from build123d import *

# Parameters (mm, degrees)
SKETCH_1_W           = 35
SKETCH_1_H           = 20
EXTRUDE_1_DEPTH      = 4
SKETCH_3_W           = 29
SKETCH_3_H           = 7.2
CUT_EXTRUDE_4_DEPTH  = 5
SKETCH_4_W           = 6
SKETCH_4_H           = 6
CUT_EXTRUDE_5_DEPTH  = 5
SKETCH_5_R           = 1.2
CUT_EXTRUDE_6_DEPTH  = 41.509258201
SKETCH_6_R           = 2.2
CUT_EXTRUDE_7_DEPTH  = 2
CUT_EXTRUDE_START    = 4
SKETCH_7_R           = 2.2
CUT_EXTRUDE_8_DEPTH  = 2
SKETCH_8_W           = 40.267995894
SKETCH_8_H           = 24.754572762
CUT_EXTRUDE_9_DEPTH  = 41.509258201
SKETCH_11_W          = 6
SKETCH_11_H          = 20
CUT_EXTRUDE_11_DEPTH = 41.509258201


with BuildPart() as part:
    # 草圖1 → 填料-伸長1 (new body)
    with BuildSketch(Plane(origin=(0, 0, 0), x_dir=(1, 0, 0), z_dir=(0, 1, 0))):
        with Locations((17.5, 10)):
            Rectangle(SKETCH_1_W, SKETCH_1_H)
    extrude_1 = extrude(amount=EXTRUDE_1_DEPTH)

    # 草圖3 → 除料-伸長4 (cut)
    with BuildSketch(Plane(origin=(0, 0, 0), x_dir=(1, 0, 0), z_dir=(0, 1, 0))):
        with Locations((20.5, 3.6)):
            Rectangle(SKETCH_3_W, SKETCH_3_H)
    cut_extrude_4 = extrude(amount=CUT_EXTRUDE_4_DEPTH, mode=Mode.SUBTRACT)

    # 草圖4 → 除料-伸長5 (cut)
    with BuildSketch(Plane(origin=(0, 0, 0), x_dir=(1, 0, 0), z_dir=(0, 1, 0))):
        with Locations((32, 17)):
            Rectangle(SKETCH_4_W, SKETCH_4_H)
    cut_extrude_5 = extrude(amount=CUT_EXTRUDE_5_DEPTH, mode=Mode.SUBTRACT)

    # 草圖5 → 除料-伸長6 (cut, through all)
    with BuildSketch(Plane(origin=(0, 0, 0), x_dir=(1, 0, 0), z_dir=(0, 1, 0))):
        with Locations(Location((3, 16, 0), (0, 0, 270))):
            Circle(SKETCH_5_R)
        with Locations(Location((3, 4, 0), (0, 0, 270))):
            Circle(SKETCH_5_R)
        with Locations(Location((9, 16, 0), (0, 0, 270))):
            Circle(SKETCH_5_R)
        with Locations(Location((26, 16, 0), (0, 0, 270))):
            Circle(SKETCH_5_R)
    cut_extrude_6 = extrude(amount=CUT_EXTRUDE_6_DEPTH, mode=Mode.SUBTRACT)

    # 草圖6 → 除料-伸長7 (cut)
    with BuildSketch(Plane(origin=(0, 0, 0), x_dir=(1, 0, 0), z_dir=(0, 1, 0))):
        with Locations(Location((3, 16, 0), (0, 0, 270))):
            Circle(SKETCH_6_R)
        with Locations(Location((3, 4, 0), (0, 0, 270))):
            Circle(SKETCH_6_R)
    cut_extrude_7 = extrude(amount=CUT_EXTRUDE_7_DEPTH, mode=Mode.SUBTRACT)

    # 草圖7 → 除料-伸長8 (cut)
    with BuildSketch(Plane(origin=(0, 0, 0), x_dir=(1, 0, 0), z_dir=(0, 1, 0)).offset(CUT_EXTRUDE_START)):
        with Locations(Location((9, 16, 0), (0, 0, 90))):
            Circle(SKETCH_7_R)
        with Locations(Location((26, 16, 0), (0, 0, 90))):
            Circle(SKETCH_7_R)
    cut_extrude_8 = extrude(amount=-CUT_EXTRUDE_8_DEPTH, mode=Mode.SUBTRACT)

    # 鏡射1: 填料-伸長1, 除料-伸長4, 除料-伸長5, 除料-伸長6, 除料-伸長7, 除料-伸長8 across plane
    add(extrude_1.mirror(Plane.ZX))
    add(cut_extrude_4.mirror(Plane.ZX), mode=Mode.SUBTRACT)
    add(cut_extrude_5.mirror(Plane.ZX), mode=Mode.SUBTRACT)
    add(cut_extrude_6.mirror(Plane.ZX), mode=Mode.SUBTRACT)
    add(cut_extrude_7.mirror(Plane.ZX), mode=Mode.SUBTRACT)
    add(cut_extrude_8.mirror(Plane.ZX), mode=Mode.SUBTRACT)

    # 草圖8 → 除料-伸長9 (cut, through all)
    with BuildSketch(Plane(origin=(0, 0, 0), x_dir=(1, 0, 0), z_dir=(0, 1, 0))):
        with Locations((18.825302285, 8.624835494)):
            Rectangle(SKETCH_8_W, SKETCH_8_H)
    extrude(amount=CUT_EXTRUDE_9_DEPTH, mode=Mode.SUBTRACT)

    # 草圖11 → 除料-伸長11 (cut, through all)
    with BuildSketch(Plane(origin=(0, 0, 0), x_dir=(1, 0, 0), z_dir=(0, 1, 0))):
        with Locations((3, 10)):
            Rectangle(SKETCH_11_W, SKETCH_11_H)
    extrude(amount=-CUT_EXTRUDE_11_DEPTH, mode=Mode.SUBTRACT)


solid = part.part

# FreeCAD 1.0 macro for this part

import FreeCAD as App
import Part
import Sketcher

V = App.Vector

doc = App.newDocument("Part")
params = doc.addObject("Spreadsheet::Sheet", "Params")
for row, (alias, value) in enumerate([
    ("sketch1_width", "35 mm"),
    ("sketch1_height", "20 mm"),
    ("pad1_length", "4 mm"),
    ("sketch2_width", "29 mm"),
    ("sketch2_height", "7.2 mm"),
    ("pocket1_length", "5 mm"),
    ("sketch3_width", "6 mm"),
    ("pocket2_length", "5 mm"),
    ("sketch4_diameter", "2.4 mm"),
    ("sketch5_diameter", "4.4 mm"),
    ("pocket4_length", "2 mm"),
    ("sketch6_diameter", "4.4 mm"),
    ("pocket5_length", "2 mm"),
    ("sketch8_width", "6 mm"),
    ("sketch8_height", "20 mm"),
], start=1):
    params.set(f"A{row}", alias)
    params.set(f"B{row}", "=" + value)
    params.setAlias(f"B{row}", alias)

body = doc.addObject("PartDesign::Body", "Body")

sketch1 = body.newObject("Sketcher::SketchObject", "Sketch")
sketch1.AttachmentSupport = (doc.getObject("XZ_Plane"), [""])
sketch1.MapMode = "FlatFace"
sketch1.addGeometry([
    Part.LineSegment(V(0, -20, 0), V(0, 0, 0)),
    Part.LineSegment(V(0, 0, 0), V(35, 0, 0)),
    Part.LineSegment(V(35, 0, 0), V(35, -20, 0)),
    Part.LineSegment(V(35, -20, 0), V(0, -20, 0)),
], False)
sketch1.addConstraint([
    Sketcher.Constraint("Coincident", 0, 2, 1, 1),
    Sketcher.Constraint("Coincident", 1, 2, 2, 1),
    Sketcher.Constraint("Coincident", 2, 2, 3, 1),
    Sketcher.Constraint("Coincident", 3, 2, 0, 1),
    Sketcher.Constraint("Vertical", 0),
    Sketcher.Constraint("Horizontal", 1),
    Sketcher.Constraint("Vertical", 2),
    Sketcher.Constraint("Horizontal", 3),
    Sketcher.Constraint("Coincident", 0, 2, -1, 1),
    Sketcher.Constraint("DistanceX", 1, 1, 1, 2, 35.0),
    Sketcher.Constraint("DistanceY", 0, 1, 0, 2, 20.0),
])
sketch1.setExpression("Constraints[9]", "Params.sketch1_width")
sketch1.setExpression("Constraints[10]", "Params.sketch1_height")
pad1 = body.newObject("PartDesign::Pad", "Pad")
pad1.Profile = sketch1
pad1.setExpression("Length", "Params.pad1_length")
pad1.Reversed = True

sketch2 = body.newObject("Sketcher::SketchObject", "Sketch001")
sketch2.AttachmentSupport = (doc.getObject("XZ_Plane"), [""])
sketch2.MapMode = "FlatFace"
sketch2.addGeometry([
    Part.LineSegment(V(6, -7.2, 0), V(6, 0, 0)),
    Part.LineSegment(V(6, 0, 0), V(35, 0, 0)),
    Part.LineSegment(V(35, 0, 0), V(35, -7.2, 0)),
    Part.LineSegment(V(35, -7.2, 0), V(6, -7.2, 0)),
], False)
sketch2.addConstraint([
    Sketcher.Constraint("Coincident", 0, 2, 1, 1),
    Sketcher.Constraint("Coincident", 1, 2, 2, 1),
    Sketcher.Constraint("Coincident", 2, 2, 3, 1),
    Sketcher.Constraint("Coincident", 3, 2, 0, 1),
    Sketcher.Constraint("Vertical", 0),
    Sketcher.Constraint("Horizontal", 1),
    Sketcher.Constraint("Vertical", 2),
    Sketcher.Constraint("Horizontal", 3),
    Sketcher.Constraint("PointOnObject", 0, 2, -1),
    Sketcher.Constraint("DistanceX", 1, 1, 1, 2, 29.0),
    Sketcher.Constraint("DistanceY", 0, 1, 0, 2, 7.2),
    Sketcher.Constraint("DistanceX", -1, 1, 0, 2, 6.0),
])
sketch2.setExpression("Constraints[9]", "Params.sketch2_width")
sketch2.setExpression("Constraints[10]", "Params.sketch2_height")
pocket1 = body.newObject("PartDesign::Pocket", "Pocket")
pocket1.Profile = sketch2
pocket1.setExpression("Length", "Params.pocket1_length")

sketch3 = body.newObject("Sketcher::SketchObject", "Sketch002")
sketch3.AttachmentSupport = (doc.getObject("XZ_Plane"), [""])
sketch3.MapMode = "FlatFace"
sketch3.addGeometry([
    Part.LineSegment(V(29, -20, 0), V(29, -14, 0)),
    Part.LineSegment(V(29, -14, 0), V(35, -14, 0)),
    Part.LineSegment(V(35, -14, 0), V(35, -20, 0)),
    Part.LineSegment(V(35, -20, 0), V(29, -20, 0)),
], False)
sketch3.addConstraint([
    Sketcher.Constraint("Coincident", 0, 2, 1, 1),
    Sketcher.Constraint("Coincident", 1, 2, 2, 1),
    Sketcher.Constraint("Coincident", 2, 2, 3, 1),
    Sketcher.Constraint("Coincident", 3, 2, 0, 1),
    Sketcher.Constraint("Vertical", 0),
    Sketcher.Constraint("Horizontal", 1),
    Sketcher.Constraint("Vertical", 2),
    Sketcher.Constraint("Horizontal", 3),
    Sketcher.Constraint("Equal", 3, 0),
    Sketcher.Constraint("DistanceX", 1, 1, 1, 2, 6.0),
    Sketcher.Constraint("DistanceX", -1, 1, 0, 2, 29.0),
    Sketcher.Constraint("DistanceY", 0, 2, -1, 1, 14.0),
])
sketch3.setExpression("Constraints[9]", "Params.sketch3_width")
pocket2 = body.newObject("PartDesign::Pocket", "Pocket001")
pocket2.Profile = sketch3
pocket2.setExpression("Length", "Params.pocket2_length")

sketch4 = body.newObject("Sketcher::SketchObject", "Sketch003")
sketch4.AttachmentSupport = (doc.getObject("XZ_Plane"), [""])
sketch4.MapMode = "FlatFace"
sketch4.addGeometry([
    Part.Circle(V(3, -16, 0), V(0, 0, 1), 1.2),
    Part.Circle(V(3, -4, 0), V(0, 0, 1), 1.2),
    Part.Circle(V(9, -16, 0), V(0, 0, 1), 1.2),
    Part.Circle(V(26, -16, 0), V(0, 0, 1), 1.2),
], False)
sketch4.addConstraint([
    Sketcher.Constraint("Equal", 0, 1),
    Sketcher.Constraint("Equal", 1, 2),
    Sketcher.Constraint("Equal", 2, 3),
    Sketcher.Constraint("Horizontal", 0, 3, 2, 3),
    Sketcher.Constraint("Horizontal", 2, 3, 3, 3),
    Sketcher.Constraint("Vertical", 0, 3, 1, 3),
    Sketcher.Constraint("Diameter", 0, 2.4),
    Sketcher.Constraint("DistanceX", -1, 1, 0, 3, 3.0),
    Sketcher.Constraint("DistanceY", 0, 3, -1, 1, 16.0),
    Sketcher.Constraint("DistanceY", 1, 3, -1, 1, 4.0),
    Sketcher.Constraint("DistanceX", -1, 1, 2, 3, 9.0),
    Sketcher.Constraint("DistanceX", -1, 1, 3, 3, 26.0),
])
sketch4.setExpression("Constraints[6]", "Params.sketch4_diameter")
pocket3 = body.newObject("PartDesign::Pocket", "Pocket002")
pocket3.Profile = sketch4
pocket3.Type = "ThroughAll"

sketch5 = body.newObject("Sketcher::SketchObject", "Sketch004")
sketch5.AttachmentSupport = (doc.getObject("XZ_Plane"), [""])
sketch5.MapMode = "FlatFace"
sketch5.addGeometry([
    Part.Circle(V(3, -16, 0), V(0, 0, 1), 2.2),
    Part.Circle(V(3, -4, 0), V(0, 0, 1), 2.2),
], False)
sketch5.addConstraint([
    Sketcher.Constraint("Equal", 0, 1),
    Sketcher.Constraint("Vertical", 0, 3, 1, 3),
    Sketcher.Constraint("Diameter", 0, 4.4),
    Sketcher.Constraint("DistanceX", -1, 1, 0, 3, 3.0),
    Sketcher.Constraint("DistanceY", 0, 3, -1, 1, 16.0),
    Sketcher.Constraint("DistanceY", 1, 3, -1, 1, 4.0),
])
sketch5.setExpression("Constraints[2]", "Params.sketch5_diameter")
pocket4 = body.newObject("PartDesign::Pocket", "Pocket003")
pocket4.Profile = sketch5
pocket4.setExpression("Length", "Params.pocket4_length")

sketch6 = body.newObject("Sketcher::SketchObject", "Sketch005")
sketch6.AttachmentSupport = (doc.getObject("XZ_Plane"), [""])
sketch6.MapMode = "FlatFace"
sketch6.AttachmentOffset = App.Placement(V(0, 0, -4), App.Rotation())
sketch6.addGeometry([
    Part.Circle(V(9, -16, 0), V(0, 0, 1), 2.2),
    Part.Circle(V(26, -16, 0), V(0, 0, 1), 2.2),
], False)
sketch6.addConstraint([
    Sketcher.Constraint("Equal", 0, 1),
    Sketcher.Constraint("Horizontal", 0, 3, 1, 3),
    Sketcher.Constraint("Diameter", 0, 4.4),
    Sketcher.Constraint("DistanceX", -1, 1, 0, 3, 9.0),
    Sketcher.Constraint("DistanceY", 0, 3, -1, 1, 16.0),
    Sketcher.Constraint("DistanceX", -1, 1, 1, 3, 26.0),
])
sketch6.setExpression("Constraints[2]", "Params.sketch6_diameter")
pocket5 = body.newObject("PartDesign::Pocket", "Pocket004")
pocket5.Profile = sketch6
pocket5.setExpression("Length", "Params.pocket5_length")
pocket5.Reversed = True
doc.recompute()

mirrored = body.newObject("PartDesign::Mirrored", "Mirrored")
mirrored.Originals = [pad1, pocket1, pocket2, pocket3, pocket4, pocket5]
mirrored.MirrorPlane = (doc.getObject("XZ_Plane"), [""])
body.Tip = mirrored

sketch7 = body.newObject("Sketcher::SketchObject", "Sketch006")
sketch7.AttachmentSupport = (doc.getObject("XZ_Plane"), [""])
sketch7.MapMode = "FlatFace"
sketch7.addGeometry([
    Part.LineSegment(V(-1.308696, -21.002122, 0), V(-1.308696, 3.752451, 0)),
    Part.LineSegment(V(-1.308696, 3.752451, 0), V(38.9593, 3.752451, 0)),
    Part.LineSegment(V(38.9593, 3.752451, 0), V(38.9593, -21.002122, 0)),
    Part.LineSegment(V(38.9593, -21.002122, 0), V(-1.308696, -21.002122, 0)),
], False)
sketch7.addConstraint([
    Sketcher.Constraint("Coincident", 0, 2, 1, 1),
    Sketcher.Constraint("Coincident", 1, 2, 2, 1),
    Sketcher.Constraint("Coincident", 2, 2, 3, 1),
    Sketcher.Constraint("Coincident", 3, 2, 0, 1),
    Sketcher.Constraint("Vertical", 0),
    Sketcher.Constraint("Horizontal", 1),
    Sketcher.Constraint("Vertical", 2),
    Sketcher.Constraint("Horizontal", 3),
    Sketcher.Constraint("DistanceX", -1, 1, 1, 2, 38.9593),
    Sketcher.Constraint("DistanceX", 1, 1, 1, 2, 40.267996),
    Sketcher.Constraint("DistanceY", 0, 1, 0, 2, 24.754573),
    Sketcher.Constraint("DistanceY", -1, 1, 0, 2, 3.752451),
])
pocket6 = body.newObject("PartDesign::Pocket", "Pocket005")
pocket6.Profile = sketch7
pocket6.Type = "ThroughAll"

sketch8 = body.newObject("Sketcher::SketchObject", "Sketch007")
sketch8.AttachmentSupport = (doc.getObject("XZ_Plane"), [""])
sketch8.MapMode = "FlatFace"
sketch8.addGeometry([
    Part.LineSegment(V(0, -20, 0), V(0, 0, 0)),
    Part.LineSegment(V(0, 0, 0), V(6, 0, 0)),
    Part.LineSegment(V(6, 0, 0), V(6, -20, 0)),
    Part.LineSegment(V(6, -20, 0), V(0, -20, 0)),
], False)
sketch8.addConstraint([
    Sketcher.Constraint("Coincident", 0, 2, 1, 1),
    Sketcher.Constraint("Coincident", 1, 2, 2, 1),
    Sketcher.Constraint("Coincident", 2, 2, 3, 1),
    Sketcher.Constraint("Coincident", 3, 2, 0, 1),
    Sketcher.Constraint("Vertical", 0),
    Sketcher.Constraint("Horizontal", 1),
    Sketcher.Constraint("Vertical", 2),
    Sketcher.Constraint("Horizontal", 3),
    Sketcher.Constraint("Coincident", 0, 2, -1, 1),
    Sketcher.Constraint("DistanceX", 1, 1, 1, 2, 6.0),
    Sketcher.Constraint("DistanceY", 0, 1, 0, 2, 20.0),
])
sketch8.setExpression("Constraints[9]", "Params.sketch8_width")
sketch8.setExpression("Constraints[10]", "Params.sketch8_height")
pocket7 = body.newObject("PartDesign::Pocket", "Pocket006")
pocket7.Profile = sketch8
pocket7.Type = "ThroughAll"
pocket7.Reversed = True

doc.recompute()
